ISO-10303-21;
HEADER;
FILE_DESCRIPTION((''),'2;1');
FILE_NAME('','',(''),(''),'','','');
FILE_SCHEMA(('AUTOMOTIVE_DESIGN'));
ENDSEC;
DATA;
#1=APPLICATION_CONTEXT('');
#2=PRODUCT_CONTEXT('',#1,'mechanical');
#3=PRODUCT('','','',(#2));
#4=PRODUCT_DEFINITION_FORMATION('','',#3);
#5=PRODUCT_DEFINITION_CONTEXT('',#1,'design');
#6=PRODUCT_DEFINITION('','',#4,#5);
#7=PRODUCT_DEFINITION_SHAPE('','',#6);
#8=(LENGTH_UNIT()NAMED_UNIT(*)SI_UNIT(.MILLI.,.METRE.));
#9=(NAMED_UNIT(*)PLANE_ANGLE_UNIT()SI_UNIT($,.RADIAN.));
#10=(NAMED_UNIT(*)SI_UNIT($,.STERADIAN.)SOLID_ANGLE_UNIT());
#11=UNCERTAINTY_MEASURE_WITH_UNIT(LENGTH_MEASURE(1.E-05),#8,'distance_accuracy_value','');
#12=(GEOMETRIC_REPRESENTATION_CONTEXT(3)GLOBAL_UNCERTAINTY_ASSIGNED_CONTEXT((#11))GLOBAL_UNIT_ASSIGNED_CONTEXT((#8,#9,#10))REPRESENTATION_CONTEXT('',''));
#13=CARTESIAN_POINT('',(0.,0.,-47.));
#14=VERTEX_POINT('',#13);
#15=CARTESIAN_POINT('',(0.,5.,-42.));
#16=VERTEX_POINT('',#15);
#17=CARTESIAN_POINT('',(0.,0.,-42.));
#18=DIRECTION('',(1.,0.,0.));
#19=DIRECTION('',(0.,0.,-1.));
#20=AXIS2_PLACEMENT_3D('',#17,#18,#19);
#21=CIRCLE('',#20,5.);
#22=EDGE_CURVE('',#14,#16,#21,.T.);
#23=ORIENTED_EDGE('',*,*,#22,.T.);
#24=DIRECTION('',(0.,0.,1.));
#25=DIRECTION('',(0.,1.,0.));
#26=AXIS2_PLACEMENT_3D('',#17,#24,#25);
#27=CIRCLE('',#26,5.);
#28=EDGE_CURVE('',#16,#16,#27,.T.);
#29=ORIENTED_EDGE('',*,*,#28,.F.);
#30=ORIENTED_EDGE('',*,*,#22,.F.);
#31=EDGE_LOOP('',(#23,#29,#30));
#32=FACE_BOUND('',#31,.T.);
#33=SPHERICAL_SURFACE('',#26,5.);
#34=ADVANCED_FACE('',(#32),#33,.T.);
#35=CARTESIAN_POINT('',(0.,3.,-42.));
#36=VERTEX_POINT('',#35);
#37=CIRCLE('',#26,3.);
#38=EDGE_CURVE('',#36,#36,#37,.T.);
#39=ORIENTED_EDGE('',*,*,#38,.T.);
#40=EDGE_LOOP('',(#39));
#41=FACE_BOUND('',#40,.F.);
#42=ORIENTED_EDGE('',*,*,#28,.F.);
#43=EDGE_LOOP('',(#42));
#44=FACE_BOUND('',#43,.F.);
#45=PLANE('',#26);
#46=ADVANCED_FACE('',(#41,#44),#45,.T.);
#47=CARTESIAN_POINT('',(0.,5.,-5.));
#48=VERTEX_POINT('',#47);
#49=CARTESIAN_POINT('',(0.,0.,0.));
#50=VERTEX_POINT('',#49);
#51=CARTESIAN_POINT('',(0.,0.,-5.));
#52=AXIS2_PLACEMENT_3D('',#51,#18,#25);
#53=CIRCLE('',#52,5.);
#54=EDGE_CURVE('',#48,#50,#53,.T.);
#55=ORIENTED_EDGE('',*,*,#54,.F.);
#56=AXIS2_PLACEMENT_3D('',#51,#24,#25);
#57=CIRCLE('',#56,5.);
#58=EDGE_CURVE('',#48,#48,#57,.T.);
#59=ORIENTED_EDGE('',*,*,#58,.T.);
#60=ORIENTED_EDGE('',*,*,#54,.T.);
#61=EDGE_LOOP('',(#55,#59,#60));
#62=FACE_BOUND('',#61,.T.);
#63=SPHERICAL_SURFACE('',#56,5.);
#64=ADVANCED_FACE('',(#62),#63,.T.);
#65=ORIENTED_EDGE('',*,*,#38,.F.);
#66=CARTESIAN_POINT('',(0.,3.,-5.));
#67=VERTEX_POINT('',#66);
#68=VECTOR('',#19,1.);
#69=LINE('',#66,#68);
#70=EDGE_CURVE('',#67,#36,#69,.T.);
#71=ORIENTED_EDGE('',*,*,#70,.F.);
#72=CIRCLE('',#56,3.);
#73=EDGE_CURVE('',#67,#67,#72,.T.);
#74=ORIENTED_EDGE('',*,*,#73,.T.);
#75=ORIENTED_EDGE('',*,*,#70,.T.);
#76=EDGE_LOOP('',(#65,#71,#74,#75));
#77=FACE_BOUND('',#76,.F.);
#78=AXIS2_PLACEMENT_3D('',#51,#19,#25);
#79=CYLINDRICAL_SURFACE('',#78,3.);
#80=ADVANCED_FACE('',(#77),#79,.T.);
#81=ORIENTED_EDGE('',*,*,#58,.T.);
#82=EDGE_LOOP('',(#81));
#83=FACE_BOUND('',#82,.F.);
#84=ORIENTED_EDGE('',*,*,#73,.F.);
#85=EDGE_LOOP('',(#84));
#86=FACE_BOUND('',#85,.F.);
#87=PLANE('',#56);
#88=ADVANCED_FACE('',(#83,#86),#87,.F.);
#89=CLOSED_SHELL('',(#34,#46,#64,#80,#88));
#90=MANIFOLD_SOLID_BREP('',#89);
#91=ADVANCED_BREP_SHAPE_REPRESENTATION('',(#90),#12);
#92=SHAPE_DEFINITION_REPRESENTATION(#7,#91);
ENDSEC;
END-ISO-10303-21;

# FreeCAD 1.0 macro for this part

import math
import FreeCAD as App
import Part
import Sketcher

V = App.Vector

doc = App.newDocument("Part")
body = doc.addObject("PartDesign::Body", "Body")

# Sketch on YZ plane
sketch1 = body.newObject("Sketcher::SketchObject", "Sketch")
sketch1.AttachmentSupport = (doc.getObject("YZ_Plane"), [""])
sketch1.MapMode = "FlatFace"
sketch1.addGeometry([
    Part.LineSegment(V(3, -5, 0), V(5, -5, 0)),  # 0
    Part.ArcOfCircle(Part.Circle(V(0, -5, 0), V(0, 0, 1), 5), math.radians(0), math.radians(90)),  # 1
    Part.LineSegment(V(0, 0, 0), V(0, -47, 0)),  # 2
    Part.ArcOfCircle(Part.Circle(V(0, -42, 0), V(0, 0, 1), 5), math.radians(-90), math.radians(0)),  # 3
    Part.LineSegment(V(5, -42, 0), V(3, -42, 0)),  # 4
    Part.LineSegment(V(3, -42, 0), V(3, -5, 0)),  # 5
], False)
sketch1.addConstraint([
    Sketcher.Constraint("Coincident", 0, 2, 1, 1),
    Sketcher.Constraint("Coincident", 1, 2, 2, 1),
    Sketcher.Constraint("Coincident", 2, 2, 3, 1),
    Sketcher.Constraint("Coincident", 3, 2, 4, 1),
    Sketcher.Constraint("Coincident", 4, 2, 5, 1),
    Sketcher.Constraint("Coincident", 5, 2, 0, 1),
    Sketcher.Constraint("Horizontal", 0),
    Sketcher.Constraint("Vertical", 2),
    Sketcher.Constraint("Horizontal", 4),
    Sketcher.Constraint("Vertical", 5),
    Sketcher.Constraint("Coincident", 1, 2, -1, 1),
    Sketcher.Constraint("Equal", 1, 3),
    Sketcher.Constraint("PointOnObject", 1, 3, -2),
    Sketcher.Constraint("PointOnObject", 3, 3, -2),
    Sketcher.Constraint("Horizontal", 1, 3, 0, 2),
    Sketcher.Constraint("Radius", 1, 5.0),
    Sketcher.Constraint("DistanceX", 0, 1, 0, 2, 2.0),
    Sketcher.Constraint("DistanceY", 5, 1, 5, 2, 37.0),
    Sketcher.Constraint("DistanceY", 3, 3, 1, 3, 37.0),
])
revolution = body.newObject("PartDesign::Revolution", "Revolution")
revolution.Profile = sketch1
revolution.ReferenceAxis = (sketch1, ["V_Axis"])
revolution.Angle = 360

doc.recompute()
